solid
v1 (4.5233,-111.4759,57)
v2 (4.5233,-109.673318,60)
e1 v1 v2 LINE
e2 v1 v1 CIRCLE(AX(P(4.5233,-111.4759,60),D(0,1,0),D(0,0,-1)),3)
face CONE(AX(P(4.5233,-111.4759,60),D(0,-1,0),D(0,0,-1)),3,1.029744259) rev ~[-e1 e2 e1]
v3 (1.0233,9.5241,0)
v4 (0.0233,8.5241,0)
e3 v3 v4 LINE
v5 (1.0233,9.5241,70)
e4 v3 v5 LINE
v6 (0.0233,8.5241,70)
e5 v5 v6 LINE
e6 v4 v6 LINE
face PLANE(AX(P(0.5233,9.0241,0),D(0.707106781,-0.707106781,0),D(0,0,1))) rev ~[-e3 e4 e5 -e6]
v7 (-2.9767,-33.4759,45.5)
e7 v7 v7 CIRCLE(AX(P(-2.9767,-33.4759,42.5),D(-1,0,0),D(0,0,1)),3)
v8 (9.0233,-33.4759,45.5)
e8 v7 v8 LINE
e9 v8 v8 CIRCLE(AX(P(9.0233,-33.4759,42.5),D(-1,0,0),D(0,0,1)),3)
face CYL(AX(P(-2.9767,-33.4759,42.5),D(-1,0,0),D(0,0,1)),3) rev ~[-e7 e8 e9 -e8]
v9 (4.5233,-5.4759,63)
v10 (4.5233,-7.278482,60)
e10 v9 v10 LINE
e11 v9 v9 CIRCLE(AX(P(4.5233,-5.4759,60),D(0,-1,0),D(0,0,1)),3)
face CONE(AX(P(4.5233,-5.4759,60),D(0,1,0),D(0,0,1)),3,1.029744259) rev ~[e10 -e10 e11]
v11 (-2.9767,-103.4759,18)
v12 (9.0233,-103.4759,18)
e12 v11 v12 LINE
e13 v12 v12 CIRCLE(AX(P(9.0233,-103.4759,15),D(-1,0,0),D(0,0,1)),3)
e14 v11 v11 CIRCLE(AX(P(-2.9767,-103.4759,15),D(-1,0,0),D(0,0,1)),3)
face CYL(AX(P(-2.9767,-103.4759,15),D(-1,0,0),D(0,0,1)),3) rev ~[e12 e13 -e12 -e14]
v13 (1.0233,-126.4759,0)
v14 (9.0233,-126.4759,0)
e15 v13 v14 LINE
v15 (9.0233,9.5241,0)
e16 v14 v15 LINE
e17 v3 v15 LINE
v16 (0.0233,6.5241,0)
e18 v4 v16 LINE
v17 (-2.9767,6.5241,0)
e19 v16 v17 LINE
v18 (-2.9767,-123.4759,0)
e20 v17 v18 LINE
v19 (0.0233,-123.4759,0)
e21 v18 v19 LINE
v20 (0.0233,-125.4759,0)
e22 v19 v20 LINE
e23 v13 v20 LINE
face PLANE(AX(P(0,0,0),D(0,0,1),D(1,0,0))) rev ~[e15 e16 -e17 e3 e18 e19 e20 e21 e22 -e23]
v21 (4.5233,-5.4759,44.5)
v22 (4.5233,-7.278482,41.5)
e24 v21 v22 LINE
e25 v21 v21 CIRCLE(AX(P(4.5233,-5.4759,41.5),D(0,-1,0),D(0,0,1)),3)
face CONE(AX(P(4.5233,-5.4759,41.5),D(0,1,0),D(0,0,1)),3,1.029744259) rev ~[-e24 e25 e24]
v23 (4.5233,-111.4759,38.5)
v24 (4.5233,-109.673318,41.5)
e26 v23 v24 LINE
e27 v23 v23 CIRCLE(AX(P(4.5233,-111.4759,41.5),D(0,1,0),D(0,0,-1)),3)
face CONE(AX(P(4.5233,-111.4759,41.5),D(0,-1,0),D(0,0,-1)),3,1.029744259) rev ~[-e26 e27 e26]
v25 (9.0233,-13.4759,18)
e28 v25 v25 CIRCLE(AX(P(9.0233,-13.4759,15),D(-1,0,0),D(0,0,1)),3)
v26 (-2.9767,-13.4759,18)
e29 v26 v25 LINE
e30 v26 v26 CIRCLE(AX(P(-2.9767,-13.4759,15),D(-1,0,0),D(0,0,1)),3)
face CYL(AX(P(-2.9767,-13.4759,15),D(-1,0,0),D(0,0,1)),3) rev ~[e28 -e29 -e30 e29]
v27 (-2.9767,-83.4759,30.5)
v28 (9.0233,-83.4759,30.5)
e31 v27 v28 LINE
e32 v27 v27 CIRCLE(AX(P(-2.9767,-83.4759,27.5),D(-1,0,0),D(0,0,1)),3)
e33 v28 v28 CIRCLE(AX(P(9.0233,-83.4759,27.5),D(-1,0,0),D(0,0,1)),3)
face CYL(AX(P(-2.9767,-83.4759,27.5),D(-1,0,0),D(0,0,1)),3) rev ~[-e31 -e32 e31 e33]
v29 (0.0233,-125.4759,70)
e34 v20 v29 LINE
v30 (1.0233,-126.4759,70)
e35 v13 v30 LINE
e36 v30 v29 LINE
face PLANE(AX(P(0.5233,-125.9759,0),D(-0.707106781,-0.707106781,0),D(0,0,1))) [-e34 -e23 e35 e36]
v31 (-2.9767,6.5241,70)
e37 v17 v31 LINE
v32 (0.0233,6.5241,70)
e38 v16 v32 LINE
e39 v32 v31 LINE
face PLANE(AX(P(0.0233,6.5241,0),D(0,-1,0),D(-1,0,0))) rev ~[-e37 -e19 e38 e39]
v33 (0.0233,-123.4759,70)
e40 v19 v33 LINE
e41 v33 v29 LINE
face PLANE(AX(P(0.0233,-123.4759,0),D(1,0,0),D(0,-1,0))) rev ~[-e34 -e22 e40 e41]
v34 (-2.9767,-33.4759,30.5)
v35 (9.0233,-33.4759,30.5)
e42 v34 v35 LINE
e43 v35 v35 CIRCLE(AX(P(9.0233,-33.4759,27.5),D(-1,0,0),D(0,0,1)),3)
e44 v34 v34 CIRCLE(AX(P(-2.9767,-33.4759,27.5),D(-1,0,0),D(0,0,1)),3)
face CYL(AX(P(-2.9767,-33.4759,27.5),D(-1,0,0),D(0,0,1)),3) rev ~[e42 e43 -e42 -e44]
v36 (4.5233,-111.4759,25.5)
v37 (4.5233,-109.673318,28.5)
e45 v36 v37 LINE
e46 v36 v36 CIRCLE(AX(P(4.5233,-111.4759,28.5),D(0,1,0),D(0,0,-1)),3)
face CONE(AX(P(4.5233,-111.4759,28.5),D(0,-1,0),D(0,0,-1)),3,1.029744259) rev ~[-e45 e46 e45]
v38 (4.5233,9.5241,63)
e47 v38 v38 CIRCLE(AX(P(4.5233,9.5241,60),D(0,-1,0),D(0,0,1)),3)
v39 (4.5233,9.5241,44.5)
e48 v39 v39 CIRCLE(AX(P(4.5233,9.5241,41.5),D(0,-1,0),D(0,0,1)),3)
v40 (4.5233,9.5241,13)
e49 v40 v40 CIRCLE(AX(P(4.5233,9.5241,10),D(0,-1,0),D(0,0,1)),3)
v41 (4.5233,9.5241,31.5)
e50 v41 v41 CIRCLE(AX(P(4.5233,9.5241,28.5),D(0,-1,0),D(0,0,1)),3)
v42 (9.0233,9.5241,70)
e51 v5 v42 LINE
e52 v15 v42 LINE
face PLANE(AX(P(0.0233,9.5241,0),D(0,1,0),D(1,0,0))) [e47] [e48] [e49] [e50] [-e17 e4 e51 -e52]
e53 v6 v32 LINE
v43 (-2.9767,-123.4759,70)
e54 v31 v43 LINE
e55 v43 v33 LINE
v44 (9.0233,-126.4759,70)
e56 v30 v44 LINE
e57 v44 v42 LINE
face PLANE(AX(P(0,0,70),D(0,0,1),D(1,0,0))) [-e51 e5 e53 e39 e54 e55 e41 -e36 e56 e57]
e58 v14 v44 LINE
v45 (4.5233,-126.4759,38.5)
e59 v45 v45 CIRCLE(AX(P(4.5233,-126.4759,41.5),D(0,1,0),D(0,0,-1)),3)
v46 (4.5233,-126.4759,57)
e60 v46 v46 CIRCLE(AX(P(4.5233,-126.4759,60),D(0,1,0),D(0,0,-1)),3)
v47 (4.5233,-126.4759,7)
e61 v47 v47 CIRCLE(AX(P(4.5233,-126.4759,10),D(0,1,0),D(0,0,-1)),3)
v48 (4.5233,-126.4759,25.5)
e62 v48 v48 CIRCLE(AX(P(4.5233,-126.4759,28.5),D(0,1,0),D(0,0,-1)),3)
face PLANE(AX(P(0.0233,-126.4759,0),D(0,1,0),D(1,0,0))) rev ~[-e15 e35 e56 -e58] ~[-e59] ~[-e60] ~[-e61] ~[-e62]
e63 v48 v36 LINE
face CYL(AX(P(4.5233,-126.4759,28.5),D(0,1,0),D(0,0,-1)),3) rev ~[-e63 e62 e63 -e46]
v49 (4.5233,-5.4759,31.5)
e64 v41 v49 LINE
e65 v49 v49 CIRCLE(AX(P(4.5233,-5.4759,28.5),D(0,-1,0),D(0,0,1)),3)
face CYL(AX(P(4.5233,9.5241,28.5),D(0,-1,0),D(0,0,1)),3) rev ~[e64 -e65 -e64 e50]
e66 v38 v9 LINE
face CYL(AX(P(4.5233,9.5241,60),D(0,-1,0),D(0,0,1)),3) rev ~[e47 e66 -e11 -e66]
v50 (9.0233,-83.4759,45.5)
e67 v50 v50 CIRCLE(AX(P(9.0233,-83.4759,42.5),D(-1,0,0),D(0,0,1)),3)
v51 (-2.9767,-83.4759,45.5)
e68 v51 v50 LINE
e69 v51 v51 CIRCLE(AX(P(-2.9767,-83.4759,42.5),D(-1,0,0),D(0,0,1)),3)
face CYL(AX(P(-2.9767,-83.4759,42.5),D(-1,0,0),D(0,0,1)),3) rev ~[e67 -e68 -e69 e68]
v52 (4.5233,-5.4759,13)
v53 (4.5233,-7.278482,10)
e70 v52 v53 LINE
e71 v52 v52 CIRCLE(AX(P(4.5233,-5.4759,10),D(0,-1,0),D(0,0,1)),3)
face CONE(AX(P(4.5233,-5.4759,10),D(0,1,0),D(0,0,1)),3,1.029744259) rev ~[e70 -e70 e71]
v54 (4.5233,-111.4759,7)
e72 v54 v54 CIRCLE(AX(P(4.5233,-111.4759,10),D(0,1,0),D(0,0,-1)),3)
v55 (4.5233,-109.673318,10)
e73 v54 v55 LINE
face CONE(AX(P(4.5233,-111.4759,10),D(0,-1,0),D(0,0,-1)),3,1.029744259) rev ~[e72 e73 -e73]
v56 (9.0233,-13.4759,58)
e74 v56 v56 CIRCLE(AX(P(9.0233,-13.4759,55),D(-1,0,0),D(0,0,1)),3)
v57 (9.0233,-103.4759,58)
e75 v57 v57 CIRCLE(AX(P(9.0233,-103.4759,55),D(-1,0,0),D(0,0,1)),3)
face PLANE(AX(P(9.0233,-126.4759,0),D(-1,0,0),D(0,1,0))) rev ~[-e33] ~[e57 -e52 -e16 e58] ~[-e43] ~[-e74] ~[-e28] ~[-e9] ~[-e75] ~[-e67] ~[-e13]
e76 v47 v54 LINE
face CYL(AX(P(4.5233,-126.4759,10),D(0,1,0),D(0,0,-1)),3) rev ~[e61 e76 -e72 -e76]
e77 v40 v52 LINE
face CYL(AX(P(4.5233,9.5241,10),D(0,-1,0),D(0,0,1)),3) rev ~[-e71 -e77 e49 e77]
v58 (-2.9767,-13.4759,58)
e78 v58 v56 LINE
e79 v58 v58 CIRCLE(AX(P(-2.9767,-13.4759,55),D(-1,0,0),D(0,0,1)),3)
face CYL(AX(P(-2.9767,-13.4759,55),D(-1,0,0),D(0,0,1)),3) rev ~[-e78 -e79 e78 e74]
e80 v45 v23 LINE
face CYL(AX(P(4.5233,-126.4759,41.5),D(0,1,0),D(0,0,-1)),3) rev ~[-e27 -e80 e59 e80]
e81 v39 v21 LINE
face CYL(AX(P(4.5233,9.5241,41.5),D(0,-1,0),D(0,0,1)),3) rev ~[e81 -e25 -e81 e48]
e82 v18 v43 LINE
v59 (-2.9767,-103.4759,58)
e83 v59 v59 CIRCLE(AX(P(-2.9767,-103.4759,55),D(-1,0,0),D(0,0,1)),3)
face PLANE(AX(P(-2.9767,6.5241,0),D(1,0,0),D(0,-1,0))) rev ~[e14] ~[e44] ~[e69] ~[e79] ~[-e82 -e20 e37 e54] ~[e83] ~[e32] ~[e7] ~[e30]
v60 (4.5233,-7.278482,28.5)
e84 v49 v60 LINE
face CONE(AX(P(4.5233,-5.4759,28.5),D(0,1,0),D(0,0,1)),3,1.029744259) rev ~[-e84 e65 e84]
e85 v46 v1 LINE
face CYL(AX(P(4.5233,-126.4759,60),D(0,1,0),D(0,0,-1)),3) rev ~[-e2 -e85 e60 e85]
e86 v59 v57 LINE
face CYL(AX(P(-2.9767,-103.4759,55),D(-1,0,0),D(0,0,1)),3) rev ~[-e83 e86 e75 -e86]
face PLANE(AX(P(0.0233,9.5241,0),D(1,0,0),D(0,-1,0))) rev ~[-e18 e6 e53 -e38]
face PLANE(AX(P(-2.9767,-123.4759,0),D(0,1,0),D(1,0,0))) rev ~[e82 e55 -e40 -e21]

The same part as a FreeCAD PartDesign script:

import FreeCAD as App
import Part
import Sketcher
Q = App.Units.Quantity


def edges_at(feature, points):
    """Names of the edges that pass closest to the given points."""
    edges = feature.Shape.Edges
    near = lambda p: min(range(len(edges)), key=lambda i: edges[i].distToShape(Part.Vertex(*p))[0])
    return sorted({f"Edge{near(p) + 1}" for p in points})

doc = App.newDocument("Part")
body = doc.addObject("PartDesign::Body", "Body")

sketch1 = doc.addObject("Sketcher::SketchObject", "Sketch")
body.addObject(sketch1)
sketch1.AttachmentSupport = (doc.XY_Plane, [""])
sketch1.MapMode = "FlatFace"
sketch1.addGeometry([
    Part.LineSegment(App.Vector(9, 9.5, 0), App.Vector(0, 9.5, 0)),
    Part.LineSegment(App.Vector(0, 9.5, 0), App.Vector(0, 6.5, 0)),
    Part.LineSegment(App.Vector(0, 6.5, 0), App.Vector(-3, 6.5, 0)),
    Part.LineSegment(App.Vector(-3, 6.5, 0), App.Vector(-3, -123.5, 0)),
    Part.LineSegment(App.Vector(-3, -123.5, 0), App.Vector(0, -123.5, 0)),
    Part.LineSegment(App.Vector(0, -123.5, 0), App.Vector(0, -126.5, 0)),
    Part.LineSegment(App.Vector(0, -126.5, 0), App.Vector(9, -126.5, 0)),
    Part.LineSegment(App.Vector(9, -126.5, 0), App.Vector(9, 9.5, 0)),
], False)
sketch1.addConstraint([
    Sketcher.Constraint("Coincident", 0, 2, 1, 1),
    Sketcher.Constraint("Coincident", 1, 2, 2, 1),
    Sketcher.Constraint("Coincident", 2, 2, 3, 1),
    Sketcher.Constraint("Coincident", 3, 2, 4, 1),
    Sketcher.Constraint("Coincident", 4, 2, 5, 1),
    Sketcher.Constraint("Coincident", 5, 2, 6, 1),
    Sketcher.Constraint("Coincident", 6, 2, 7, 1),
    Sketcher.Constraint("Coincident", 7, 2, 0, 1),
    Sketcher.Constraint("Horizontal", 0),
    Sketcher.Constraint("Vertical", 1),
    Sketcher.Constraint("Horizontal", 2),
    Sketcher.Constraint("Vertical", 3),
    Sketcher.Constraint("Horizontal", 4),
    Sketcher.Constraint("Vertical", 5),
    Sketcher.Constraint("Horizontal", 6),
    Sketcher.Constraint("Vertical", 7),
    Sketcher.Constraint("Vertical", 1, 2, 4, 2),
    Sketcher.Constraint("Equal", 4, 1),
    Sketcher.Constraint("Equal", 1, 5),
    Sketcher.Constraint("DistanceX", 0, 2, 0, 1, Q("9 mm")),
    Sketcher.Constraint("DistanceX", 2, 2, 2, 1, Q("3 mm")),
    Sketcher.Constraint("DistanceY", 3, 2, 3, 1, Q("130 mm")),
    Sketcher.Constraint("DistanceY", -1, 1, 0, 2, Q("9.524 mm")),
    Sketcher.Constraint("DistanceX", -1, 1, 0, 2, Q("0.0233 mm")),
])
pad1 = doc.addObject("PartDesign::Pad", "Pad")
body.addObject(pad1)
pad1.Profile = sketch1
pad1.Length = 70

sketch2 = doc.addObject("Sketcher::SketchObject", "Sketch001")
body.addObject(sketch2)
sketch2.AttachmentSupport = (doc.YZ_Plane, [""])
sketch2.MapMode = "FlatFace"
sketch2.AttachmentOffset = App.Placement(App.Vector(0, 0, -2.9767), App.Rotation())
sketch2.addGeometry([
    Part.Circle(App.Vector(-13.5, 15, 0), App.Vector(0, 0, 1), 3),
    Part.Circle(App.Vector(-33.5, 27.5, 0), App.Vector(0, 0, 1), 3),
    Part.Circle(App.Vector(-33.5, 42.5, 0), App.Vector(0, 0, 1), 3),
    Part.Circle(App.Vector(-13.5, 55, 0), App.Vector(0, 0, 1), 3),
    Part.Circle(App.Vector(-103.5, 15, 0), App.Vector(0, 0, 1), 3),
    Part.Circle(App.Vector(-83.5, 27.5, 0), App.Vector(0, 0, 1), 3),
    Part.Circle(App.Vector(-83.5, 42.5, 0), App.Vector(0, 0, 1), 3),
    Part.Circle(App.Vector(-103.5, 55, 0), App.Vector(0, 0, 1), 3),
], False)
sketch2.addConstraint([
    Sketcher.Constraint("Equal", 0, 1),
    Sketcher.Constraint("Equal", 1, 2),
    Sketcher.Constraint("Equal", 2, 3),
    Sketcher.Constraint("Equal", 3, 4),
    Sketcher.Constraint("Equal", 4, 5),
    Sketcher.Constraint("Equal", 5, 6),
    Sketcher.Constraint("Equal", 6, 7),
    Sketcher.Constraint("Horizontal", 0, 3, 4, 3),
    Sketcher.Constraint("Horizontal", 1, 3, 5, 3),
    Sketcher.Constraint("Horizontal", 2, 3, 6, 3),
    Sketcher.Constraint("Horizontal", 3, 3, 7, 3),
    Sketcher.Constraint("Vertical", 1, 3, 2, 3),
    Sketcher.Constraint("Vertical", 0, 3, 3, 3),
    Sketcher.Constraint("Vertical", 5, 3, 6, 3),
    Sketcher.Constraint("Vertical", 4, 3, 7, 3),
    Sketcher.Constraint("Diameter", 0, Q("6 mm")),
    Sketcher.Constraint("DistanceY", -1, 1, 0, 3, Q("15 mm")),
    Sketcher.Constraint("DistanceY", 1, 3, 2, 3, Q("15 mm")),
    Sketcher.Constraint("DistanceY", 0, 3, 1, 3, Q("12.5 mm")),
    Sketcher.Constraint("DistanceY", 2, 3, 3, 3, Q("12.5 mm")),
    Sketcher.Constraint("DistanceX", 1, 3, 0, 3, Q("20 mm")),
    Sketcher.Constraint("DistanceX", 4, 3, 1, 3, Q("70 mm")),
    Sketcher.Constraint("DistanceX", 4, 3, 5, 3, Q("20 mm")),
    Sketcher.Constraint("DistanceX", 0, 3, -1, 1, Q("13.476 mm")),
])
pocket1 = doc.addObject("PartDesign::Pocket", "Pocket")
body.addObject(pocket1)
pocket1.Profile = sketch2
pocket1.Length = 21
pocket1.Reversed = True

sketch3 = doc.addObject("Sketcher::SketchObject", "Sketch002")
body.addObject(sketch3)
sketch3.AttachmentSupport = (doc.XZ_Plane, [""])
sketch3.MapMode = "FlatFace"
sketch3.AttachmentOffset = App.Placement(App.Vector(0, 0, -9.5241), App.Rotation())
sketch3.addGeometry([
    Part.Circle(App.Vector(4.5, 10, 0), App.Vector(0, 0, 1), 3),
    Part.Circle(App.Vector(4.5, 28.5, 0), App.Vector(0, 0, 1), 3),
    Part.Circle(App.Vector(4.5, 41.5, 0), App.Vector(0, 0, 1), 3),
    Part.Circle(App.Vector(4.5, 60, 0), App.Vector(0, 0, 1), 3),
], False)
sketch3.addConstraint([
    Sketcher.Constraint("Equal", 0, 1),
    Sketcher.Constraint("Equal", 1, 2),
    Sketcher.Constraint("Equal", 2, 3),
    Sketcher.Constraint("Vertical", 0, 3, 1, 3),
    Sketcher.Constraint("Vertical", 1, 3, 2, 3),
    Sketcher.Constraint("Vertical", 2, 3, 3, 3),
    Sketcher.Constraint("Diameter", 0, Q("6 mm")),
    Sketcher.Constraint("DistanceY", -1, 1, 0, 3, Q("10 mm")),
    Sketcher.Constraint("DistanceY", -1, 1, 3, 3, Q("60 mm")),
    Sketcher.Constraint("DistanceY", 1, 3, 2, 3, Q("13 mm")),
    Sketcher.Constraint("DistanceY", -1, 1, 1, 3, Q("28.5 mm")),
    Sketcher.Constraint("DistanceX", -1, 1, 0, 3, Q("4.5233 mm")),
])
doc.recompute()
hole = doc.addObject("PartDesign::Hole", "Hole")
body.addObject(hole)
hole.Profile = sketch3
hole.ThreadType = "None"
hole.Diameter = 6
hole.DepthType = "Dimension"
hole.Depth = 15
hole.DrillPoint = "Angled"
hole.DrillPointAngle = 118
hole.Reversed = True

sketch4 = doc.addObject("Sketcher::SketchObject", "Sketch003")
body.addObject(sketch4)
sketch4.AttachmentSupport = (doc.XZ_Plane, [""])
sketch4.MapMode = "FlatFace"
sketch4.AttachmentOffset = App.Placement(App.Vector(0, 0, 126.4759), App.Rotation())
sketch4.addGeometry([
    Part.Circle(App.Vector(4.5, 10, 0), App.Vector(0, 0, 1), 3),
    Part.Circle(App.Vector(4.5, 28.5, 0), App.Vector(0, 0, 1), 3),
    Part.Circle(App.Vector(4.5, 41.5, 0), App.Vector(0, 0, 1), 3),
    Part.Circle(App.Vector(4.5, 60, 0), App.Vector(0, 0, 1), 3),
], False)
sketch4.addConstraint([
    Sketcher.Constraint("Equal", 0, 1),
    Sketcher.Constraint("Equal", 1, 2),
    Sketcher.Constraint("Equal", 2, 3),
    Sketcher.Constraint("Vertical", 0, 3, 1, 3),
    Sketcher.Constraint("Vertical", 1, 3, 2, 3),
    Sketcher.Constraint("Vertical", 2, 3, 3, 3),
    Sketcher.Constraint("Diameter", 0, Q("6 mm")),
    Sketcher.Constraint("DistanceY", -1, 1, 0, 3, Q("10 mm")),
    Sketcher.Constraint("DistanceY", -1, 1, 3, 3, Q("60 mm")),
    Sketcher.Constraint("DistanceY", 1, 3, 2, 3, Q("13 mm")),
    Sketcher.Constraint("DistanceY", -1, 1, 1, 3, Q("28.5 mm")),
    Sketcher.Constraint("DistanceX", -1, 1, 0, 3, Q("4.5233 mm")),
])
doc.recompute()
hole2 = doc.addObject("PartDesign::Hole", "Hole001")
body.addObject(hole2)
hole2.Profile = sketch4
hole2.ThreadType = "None"
hole2.Diameter = 6
hole2.DepthType = "Dimension"
hole2.Depth = 15
hole2.DrillPoint = "Angled"
hole2.DrillPointAngle = 118
doc.recompute()

chamfer = doc.addObject("PartDesign::Chamfer", "Chamfer")
body.addObject(chamfer)
chamfer.Base = (hole2, edges_at(hole2, [(0.023, 9.524, 35), (0.023, -126.476, 35)]))
chamfer.Size = 1

doc.recompute()
